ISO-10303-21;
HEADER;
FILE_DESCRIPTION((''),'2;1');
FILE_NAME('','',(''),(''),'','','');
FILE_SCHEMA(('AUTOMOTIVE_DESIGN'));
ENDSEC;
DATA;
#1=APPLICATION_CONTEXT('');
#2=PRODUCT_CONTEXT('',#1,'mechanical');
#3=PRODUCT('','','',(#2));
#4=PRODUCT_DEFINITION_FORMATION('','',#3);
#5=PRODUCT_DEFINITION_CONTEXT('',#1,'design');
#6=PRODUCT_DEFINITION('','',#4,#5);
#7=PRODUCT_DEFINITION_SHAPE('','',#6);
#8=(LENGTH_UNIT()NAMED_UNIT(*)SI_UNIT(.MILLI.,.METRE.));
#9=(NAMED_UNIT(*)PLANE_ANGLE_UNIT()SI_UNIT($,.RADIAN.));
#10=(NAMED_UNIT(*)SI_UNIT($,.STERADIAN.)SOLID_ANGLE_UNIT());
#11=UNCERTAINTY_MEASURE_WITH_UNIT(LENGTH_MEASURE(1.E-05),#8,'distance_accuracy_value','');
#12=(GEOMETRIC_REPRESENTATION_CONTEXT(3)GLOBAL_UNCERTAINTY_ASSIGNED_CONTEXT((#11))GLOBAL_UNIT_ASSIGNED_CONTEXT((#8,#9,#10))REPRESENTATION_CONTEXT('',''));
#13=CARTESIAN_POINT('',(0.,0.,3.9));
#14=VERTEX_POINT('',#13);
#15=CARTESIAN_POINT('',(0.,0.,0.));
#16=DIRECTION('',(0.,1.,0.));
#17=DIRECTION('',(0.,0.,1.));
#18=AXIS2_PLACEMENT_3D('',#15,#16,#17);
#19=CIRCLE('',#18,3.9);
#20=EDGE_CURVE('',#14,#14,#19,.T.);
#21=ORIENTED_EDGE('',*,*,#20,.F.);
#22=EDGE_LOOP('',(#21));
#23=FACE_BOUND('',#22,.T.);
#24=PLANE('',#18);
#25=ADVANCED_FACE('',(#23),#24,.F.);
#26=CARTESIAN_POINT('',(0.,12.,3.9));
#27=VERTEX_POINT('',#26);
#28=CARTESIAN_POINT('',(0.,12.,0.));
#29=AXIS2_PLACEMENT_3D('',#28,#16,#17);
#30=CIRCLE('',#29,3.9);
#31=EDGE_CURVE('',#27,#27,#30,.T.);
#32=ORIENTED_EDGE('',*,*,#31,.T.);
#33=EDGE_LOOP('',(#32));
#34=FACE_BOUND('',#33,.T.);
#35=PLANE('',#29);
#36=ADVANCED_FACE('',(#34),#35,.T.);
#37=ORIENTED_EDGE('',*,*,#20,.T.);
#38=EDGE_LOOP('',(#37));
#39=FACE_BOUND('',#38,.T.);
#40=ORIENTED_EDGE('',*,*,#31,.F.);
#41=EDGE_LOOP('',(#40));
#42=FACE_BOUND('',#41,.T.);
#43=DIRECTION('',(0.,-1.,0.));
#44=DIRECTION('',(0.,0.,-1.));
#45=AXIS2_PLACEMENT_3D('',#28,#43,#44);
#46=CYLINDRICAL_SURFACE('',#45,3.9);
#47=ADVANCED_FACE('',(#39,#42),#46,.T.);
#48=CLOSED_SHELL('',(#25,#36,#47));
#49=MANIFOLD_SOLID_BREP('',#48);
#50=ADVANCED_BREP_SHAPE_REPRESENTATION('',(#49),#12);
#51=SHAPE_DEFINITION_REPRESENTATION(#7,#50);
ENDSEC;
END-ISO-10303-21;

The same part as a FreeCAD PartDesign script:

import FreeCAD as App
import Part
import Sketcher
Q = App.Units.Quantity

doc = App.newDocument("Part")
params = doc.addObject("Spreadsheet::Sheet", "Params")
for row, (alias, value) in enumerate([
    ("sketch1_diameter", "7.8 mm"),
    ("pad1_length", "12 mm"),
], start=1):
    params.set(f"A{row}", alias)
    params.set(f"B{row}", "=" + value)
    params.setAlias(f"B{row}", alias)

body = doc.addObject("PartDesign::Body", "Body")

# Sketch on XZ plane
sketch1 = doc.addObject("Sketcher::SketchObject", "Sketch")
body.addObject(sketch1)
sketch1.AttachmentSupport = (doc.XZ_Plane, [""])
sketch1.MapMode = "FlatFace"
sketch1.addGeometry(Part.Circle(App.Vector(0, 0, 0), App.Vector(0, 0, 1), 3.9), False)
sketch1.addConstraint([
    Sketcher.Constraint("Coincident", 0, 3, -1, 1),
    Sketcher.Constraint("Diameter", 0, Q("7.8 mm")),
])
sketch1.setExpression("Constraints[1]", "Params.sketch1_diameter")
pad1 = doc.addObject("PartDesign::Pad", "Pad")
body.addObject(pad1)
pad1.Profile = sketch1
pad1.setExpression("Length", "Params.pad1_length")
pad1.Reversed = True

doc.recompute()
